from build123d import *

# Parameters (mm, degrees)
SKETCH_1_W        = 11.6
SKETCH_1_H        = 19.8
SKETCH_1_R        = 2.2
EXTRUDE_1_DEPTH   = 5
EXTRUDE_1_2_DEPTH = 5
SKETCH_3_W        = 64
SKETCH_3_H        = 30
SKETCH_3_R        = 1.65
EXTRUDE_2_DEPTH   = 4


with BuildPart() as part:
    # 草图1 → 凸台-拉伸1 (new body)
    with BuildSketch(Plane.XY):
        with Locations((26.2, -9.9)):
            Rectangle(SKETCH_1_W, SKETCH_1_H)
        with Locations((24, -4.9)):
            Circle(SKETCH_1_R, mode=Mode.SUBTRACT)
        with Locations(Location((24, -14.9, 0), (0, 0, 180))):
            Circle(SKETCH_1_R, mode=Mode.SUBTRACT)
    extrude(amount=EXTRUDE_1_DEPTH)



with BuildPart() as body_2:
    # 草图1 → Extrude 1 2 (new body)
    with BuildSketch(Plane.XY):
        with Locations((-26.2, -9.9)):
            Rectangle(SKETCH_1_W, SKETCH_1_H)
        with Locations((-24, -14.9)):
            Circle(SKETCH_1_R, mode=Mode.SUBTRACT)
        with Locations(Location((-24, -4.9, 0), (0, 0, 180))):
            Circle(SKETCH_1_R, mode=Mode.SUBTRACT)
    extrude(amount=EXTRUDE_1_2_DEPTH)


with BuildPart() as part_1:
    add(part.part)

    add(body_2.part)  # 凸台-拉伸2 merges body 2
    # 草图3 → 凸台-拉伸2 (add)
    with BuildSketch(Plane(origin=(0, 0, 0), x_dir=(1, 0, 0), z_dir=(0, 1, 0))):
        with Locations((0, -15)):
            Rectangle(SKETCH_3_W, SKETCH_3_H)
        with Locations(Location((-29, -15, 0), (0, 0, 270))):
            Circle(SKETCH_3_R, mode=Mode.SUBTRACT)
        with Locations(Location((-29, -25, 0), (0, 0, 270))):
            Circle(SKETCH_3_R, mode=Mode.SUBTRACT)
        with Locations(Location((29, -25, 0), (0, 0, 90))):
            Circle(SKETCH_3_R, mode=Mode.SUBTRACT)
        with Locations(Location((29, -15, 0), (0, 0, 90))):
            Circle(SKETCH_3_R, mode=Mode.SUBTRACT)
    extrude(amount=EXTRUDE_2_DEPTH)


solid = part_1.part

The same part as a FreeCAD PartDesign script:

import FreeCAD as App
import Part
import Sketcher
from FreeCAD import Vector
Q = App.Units.Quantity

doc = App.newDocument("Part")
body = doc.addObject("PartDesign::Body", "Body")

sketch1 = body.newObject("Sketcher::SketchObject", "Sketch")
sketch1.AttachmentSupport = (doc.getObject("XY_Plane"), [""])
sketch1.MapMode = "FlatFace"
sketch1.addGeometry([
    Part.LineSegment(Vector(20.4, 0, 0), Vector(20.4, -19.8, 0)),
    Part.LineSegment(Vector(20.4, -19.8, 0), Vector(32, -19.8, 0)),
    Part.LineSegment(Vector(32, -19.8, 0), Vector(32, 0, 0)),
    Part.LineSegment(Vector(32, 0, 0), Vector(20.4, 0, 0)),
    Part.Circle(Vector(24, -14.9, 0), Vector(0, 0, 1), 2.2),
    Part.Circle(Vector(24, -4.9, 0), Vector(0, 0, 1), 2.2),
], False)
sketch1.addConstraint([
    Sketcher.Constraint("Coincident", 0, 2, 1, 1),
    Sketcher.Constraint("Coincident", 1, 2, 2, 1),
    Sketcher.Constraint("Coincident", 2, 2, 3, 1),
    Sketcher.Constraint("Coincident", 3, 2, 0, 1),
    Sketcher.Constraint("Vertical", 0),
    Sketcher.Constraint("Horizontal", 1),
    Sketcher.Constraint("Vertical", 2),
    Sketcher.Constraint("Horizontal", 3),
    Sketcher.Constraint("Equal", 4, 5),
    Sketcher.Constraint("PointOnObject", 2, 2, -1),
    Sketcher.Constraint("Vertical", 4, 3, 5, 3),
    Sketcher.Constraint("Diameter", 4, Q("4.4 mm")),
    Sketcher.Constraint("DistanceX", 1, 1, 1, 2, Q("11.6 mm")),
    Sketcher.Constraint("DistanceY", 0, 2, 0, 1, Q("19.8 mm")),
    Sketcher.Constraint("DistanceX", -1, 1, 4, 3, Q("24 mm")),
    Sketcher.Constraint("DistanceX", -1, 1, 1, 2, Q("32 mm")),
    Sketcher.Constraint("DistanceY", 4, 3, 5, 3, Q("10 mm")),
    Sketcher.Constraint("DistanceY", 4, 3, -1, 1, Q("14.9 mm")),
])
pad1 = body.newObject("PartDesign::Pad", "Pad")
pad1.Profile = sketch1
pad1.Length = 5
body2 = doc.addObject("PartDesign::Body", "Body001")

sketch2 = body2.newObject("Sketcher::SketchObject", "Sketch001")
sketch2.AttachmentSupport = (doc.getObject("XY_Plane001"), [""])
sketch2.MapMode = "FlatFace"
sketch2.addGeometry([
    Part.LineSegment(Vector(-32, 0, 0), Vector(-32, -19.8, 0)),
    Part.LineSegment(Vector(-32, -19.8, 0), Vector(-20.4, -19.8, 0)),
    Part.LineSegment(Vector(-20.4, -19.8, 0), Vector(-20.4, 0, 0)),
    Part.LineSegment(Vector(-20.4, 0, 0), Vector(-32, 0, 0)),
    Part.Circle(Vector(-24, -14.9, 0), Vector(0, 0, 1), 2.2),
    Part.Circle(Vector(-24, -4.9, 0), Vector(0, 0, 1), 2.2),
], False)
sketch2.addConstraint([
    Sketcher.Constraint("Coincident", 0, 2, 1, 1),
    Sketcher.Constraint("Coincident", 1, 2, 2, 1),
    Sketcher.Constraint("Coincident", 2, 2, 3, 1),
    Sketcher.Constraint("Coincident", 3, 2, 0, 1),
    Sketcher.Constraint("Vertical", 0),
    Sketcher.Constraint("Horizontal", 1),
    Sketcher.Constraint("Vertical", 2),
    Sketcher.Constraint("Horizontal", 3),
    Sketcher.Constraint("Equal", 4, 5),
    Sketcher.Constraint("PointOnObject", 2, 2, -1),
    Sketcher.Constraint("Vertical", 4, 3, 5, 3),
    Sketcher.Constraint("Diameter", 4, Q("4.4 mm")),
    Sketcher.Constraint("DistanceX", 1, 1, 1, 2, Q("11.6 mm")),
    Sketcher.Constraint("DistanceY", 0, 2, 0, 1, Q("19.8 mm")),
    Sketcher.Constraint("DistanceX", 4, 3, -1, 1, Q("24 mm")),
    Sketcher.Constraint("DistanceX", 0, 2, -1, 1, Q("32 mm")),
    Sketcher.Constraint("DistanceY", 4, 3, 5, 3, Q("10 mm")),
    Sketcher.Constraint("DistanceY", 4, 3, -1, 1, Q("14.9 mm")),
])
pad2 = body2.newObject("PartDesign::Pad", "Pad001")
pad2.Profile = sketch2
pad2.Length = 5
body.AllowCompound = True
doc.recompute()

boolean = body.newObject("PartDesign::Boolean", "Boolean")
boolean.Type = "Fuse"
boolean.addObjects([body2])

sketch3 = body.newObject("Sketcher::SketchObject", "Sketch002")
sketch3.AttachmentSupport = (doc.getObject("XZ_Plane"), [""])
sketch3.MapMode = "FlatFace"
sketch3.addGeometry([
    Part.LineSegment(Vector(-32, 0, 0), Vector(-32, 30, 0)),
    Part.LineSegment(Vector(-32, 30, 0), Vector(32, 30, 0)),
    Part.LineSegment(Vector(32, 30, 0), Vector(32, 0, 0)),
    Part.LineSegment(Vector(32, 0, 0), Vector(-32, 0, 0)),
    Part.Circle(Vector(-29, 25, 0), Vector(0, 0, 1), 1.6),
    Part.Circle(Vector(29, 25, 0), Vector(0, 0, 1), 1.6),
    Part.Circle(Vector(-29, 15, 0), Vector(0, 0, 1), 1.6),
    Part.Circle(Vector(29, 15, 0), Vector(0, 0, 1), 1.6),
], False)
sketch3.addConstraint([
    Sketcher.Constraint("Coincident", 0, 2, 1, 1),
    Sketcher.Constraint("Coincident", 1, 2, 2, 1),
    Sketcher.Constraint("Coincident", 2, 2, 3, 1),
    Sketcher.Constraint("Coincident", 3, 2, 0, 1),
    Sketcher.Constraint("Vertical", 0),
    Sketcher.Constraint("Horizontal", 1),
    Sketcher.Constraint("Vertical", 2),
    Sketcher.Constraint("Horizontal", 3),
    Sketcher.Constraint("Equal", 4, 5),
    Sketcher.Constraint("Equal", 5, 6),
    Sketcher.Constraint("Equal", 6, 7),
    Sketcher.Constraint("Symmetric", 2, 2, 3, 2, -1, 1),
    Sketcher.Constraint("Symmetric", 4, 3, 5, 3, -2),
    Sketcher.Constraint("Symmetric", 6, 3, 7, 3, -2),
    Sketcher.Constraint("Vertical", 4, 3, 6, 3),
    Sketcher.Constraint("Diameter", 4, Q("3.3 mm")),
    Sketcher.Constraint("DistanceX", 1, 1, 1, 2, Q("64 mm")),
    Sketcher.Constraint("DistanceY", 0, 1, 0, 2, Q("30 mm")),
    Sketcher.Constraint("DistanceX", 4, 3, -1, 1, Q("29 mm")),
    Sketcher.Constraint("DistanceY", -1, 1, 4, 3, Q("25 mm")),
    Sketcher.Constraint("DistanceY", -1, 1, 6, 3, Q("15 mm")),
])
pad3 = body.newObject("PartDesign::Pad", "Pad002")
pad3.Profile = sketch3
pad3.Length = 4
pad3.Reversed = True

doc.recompute()
